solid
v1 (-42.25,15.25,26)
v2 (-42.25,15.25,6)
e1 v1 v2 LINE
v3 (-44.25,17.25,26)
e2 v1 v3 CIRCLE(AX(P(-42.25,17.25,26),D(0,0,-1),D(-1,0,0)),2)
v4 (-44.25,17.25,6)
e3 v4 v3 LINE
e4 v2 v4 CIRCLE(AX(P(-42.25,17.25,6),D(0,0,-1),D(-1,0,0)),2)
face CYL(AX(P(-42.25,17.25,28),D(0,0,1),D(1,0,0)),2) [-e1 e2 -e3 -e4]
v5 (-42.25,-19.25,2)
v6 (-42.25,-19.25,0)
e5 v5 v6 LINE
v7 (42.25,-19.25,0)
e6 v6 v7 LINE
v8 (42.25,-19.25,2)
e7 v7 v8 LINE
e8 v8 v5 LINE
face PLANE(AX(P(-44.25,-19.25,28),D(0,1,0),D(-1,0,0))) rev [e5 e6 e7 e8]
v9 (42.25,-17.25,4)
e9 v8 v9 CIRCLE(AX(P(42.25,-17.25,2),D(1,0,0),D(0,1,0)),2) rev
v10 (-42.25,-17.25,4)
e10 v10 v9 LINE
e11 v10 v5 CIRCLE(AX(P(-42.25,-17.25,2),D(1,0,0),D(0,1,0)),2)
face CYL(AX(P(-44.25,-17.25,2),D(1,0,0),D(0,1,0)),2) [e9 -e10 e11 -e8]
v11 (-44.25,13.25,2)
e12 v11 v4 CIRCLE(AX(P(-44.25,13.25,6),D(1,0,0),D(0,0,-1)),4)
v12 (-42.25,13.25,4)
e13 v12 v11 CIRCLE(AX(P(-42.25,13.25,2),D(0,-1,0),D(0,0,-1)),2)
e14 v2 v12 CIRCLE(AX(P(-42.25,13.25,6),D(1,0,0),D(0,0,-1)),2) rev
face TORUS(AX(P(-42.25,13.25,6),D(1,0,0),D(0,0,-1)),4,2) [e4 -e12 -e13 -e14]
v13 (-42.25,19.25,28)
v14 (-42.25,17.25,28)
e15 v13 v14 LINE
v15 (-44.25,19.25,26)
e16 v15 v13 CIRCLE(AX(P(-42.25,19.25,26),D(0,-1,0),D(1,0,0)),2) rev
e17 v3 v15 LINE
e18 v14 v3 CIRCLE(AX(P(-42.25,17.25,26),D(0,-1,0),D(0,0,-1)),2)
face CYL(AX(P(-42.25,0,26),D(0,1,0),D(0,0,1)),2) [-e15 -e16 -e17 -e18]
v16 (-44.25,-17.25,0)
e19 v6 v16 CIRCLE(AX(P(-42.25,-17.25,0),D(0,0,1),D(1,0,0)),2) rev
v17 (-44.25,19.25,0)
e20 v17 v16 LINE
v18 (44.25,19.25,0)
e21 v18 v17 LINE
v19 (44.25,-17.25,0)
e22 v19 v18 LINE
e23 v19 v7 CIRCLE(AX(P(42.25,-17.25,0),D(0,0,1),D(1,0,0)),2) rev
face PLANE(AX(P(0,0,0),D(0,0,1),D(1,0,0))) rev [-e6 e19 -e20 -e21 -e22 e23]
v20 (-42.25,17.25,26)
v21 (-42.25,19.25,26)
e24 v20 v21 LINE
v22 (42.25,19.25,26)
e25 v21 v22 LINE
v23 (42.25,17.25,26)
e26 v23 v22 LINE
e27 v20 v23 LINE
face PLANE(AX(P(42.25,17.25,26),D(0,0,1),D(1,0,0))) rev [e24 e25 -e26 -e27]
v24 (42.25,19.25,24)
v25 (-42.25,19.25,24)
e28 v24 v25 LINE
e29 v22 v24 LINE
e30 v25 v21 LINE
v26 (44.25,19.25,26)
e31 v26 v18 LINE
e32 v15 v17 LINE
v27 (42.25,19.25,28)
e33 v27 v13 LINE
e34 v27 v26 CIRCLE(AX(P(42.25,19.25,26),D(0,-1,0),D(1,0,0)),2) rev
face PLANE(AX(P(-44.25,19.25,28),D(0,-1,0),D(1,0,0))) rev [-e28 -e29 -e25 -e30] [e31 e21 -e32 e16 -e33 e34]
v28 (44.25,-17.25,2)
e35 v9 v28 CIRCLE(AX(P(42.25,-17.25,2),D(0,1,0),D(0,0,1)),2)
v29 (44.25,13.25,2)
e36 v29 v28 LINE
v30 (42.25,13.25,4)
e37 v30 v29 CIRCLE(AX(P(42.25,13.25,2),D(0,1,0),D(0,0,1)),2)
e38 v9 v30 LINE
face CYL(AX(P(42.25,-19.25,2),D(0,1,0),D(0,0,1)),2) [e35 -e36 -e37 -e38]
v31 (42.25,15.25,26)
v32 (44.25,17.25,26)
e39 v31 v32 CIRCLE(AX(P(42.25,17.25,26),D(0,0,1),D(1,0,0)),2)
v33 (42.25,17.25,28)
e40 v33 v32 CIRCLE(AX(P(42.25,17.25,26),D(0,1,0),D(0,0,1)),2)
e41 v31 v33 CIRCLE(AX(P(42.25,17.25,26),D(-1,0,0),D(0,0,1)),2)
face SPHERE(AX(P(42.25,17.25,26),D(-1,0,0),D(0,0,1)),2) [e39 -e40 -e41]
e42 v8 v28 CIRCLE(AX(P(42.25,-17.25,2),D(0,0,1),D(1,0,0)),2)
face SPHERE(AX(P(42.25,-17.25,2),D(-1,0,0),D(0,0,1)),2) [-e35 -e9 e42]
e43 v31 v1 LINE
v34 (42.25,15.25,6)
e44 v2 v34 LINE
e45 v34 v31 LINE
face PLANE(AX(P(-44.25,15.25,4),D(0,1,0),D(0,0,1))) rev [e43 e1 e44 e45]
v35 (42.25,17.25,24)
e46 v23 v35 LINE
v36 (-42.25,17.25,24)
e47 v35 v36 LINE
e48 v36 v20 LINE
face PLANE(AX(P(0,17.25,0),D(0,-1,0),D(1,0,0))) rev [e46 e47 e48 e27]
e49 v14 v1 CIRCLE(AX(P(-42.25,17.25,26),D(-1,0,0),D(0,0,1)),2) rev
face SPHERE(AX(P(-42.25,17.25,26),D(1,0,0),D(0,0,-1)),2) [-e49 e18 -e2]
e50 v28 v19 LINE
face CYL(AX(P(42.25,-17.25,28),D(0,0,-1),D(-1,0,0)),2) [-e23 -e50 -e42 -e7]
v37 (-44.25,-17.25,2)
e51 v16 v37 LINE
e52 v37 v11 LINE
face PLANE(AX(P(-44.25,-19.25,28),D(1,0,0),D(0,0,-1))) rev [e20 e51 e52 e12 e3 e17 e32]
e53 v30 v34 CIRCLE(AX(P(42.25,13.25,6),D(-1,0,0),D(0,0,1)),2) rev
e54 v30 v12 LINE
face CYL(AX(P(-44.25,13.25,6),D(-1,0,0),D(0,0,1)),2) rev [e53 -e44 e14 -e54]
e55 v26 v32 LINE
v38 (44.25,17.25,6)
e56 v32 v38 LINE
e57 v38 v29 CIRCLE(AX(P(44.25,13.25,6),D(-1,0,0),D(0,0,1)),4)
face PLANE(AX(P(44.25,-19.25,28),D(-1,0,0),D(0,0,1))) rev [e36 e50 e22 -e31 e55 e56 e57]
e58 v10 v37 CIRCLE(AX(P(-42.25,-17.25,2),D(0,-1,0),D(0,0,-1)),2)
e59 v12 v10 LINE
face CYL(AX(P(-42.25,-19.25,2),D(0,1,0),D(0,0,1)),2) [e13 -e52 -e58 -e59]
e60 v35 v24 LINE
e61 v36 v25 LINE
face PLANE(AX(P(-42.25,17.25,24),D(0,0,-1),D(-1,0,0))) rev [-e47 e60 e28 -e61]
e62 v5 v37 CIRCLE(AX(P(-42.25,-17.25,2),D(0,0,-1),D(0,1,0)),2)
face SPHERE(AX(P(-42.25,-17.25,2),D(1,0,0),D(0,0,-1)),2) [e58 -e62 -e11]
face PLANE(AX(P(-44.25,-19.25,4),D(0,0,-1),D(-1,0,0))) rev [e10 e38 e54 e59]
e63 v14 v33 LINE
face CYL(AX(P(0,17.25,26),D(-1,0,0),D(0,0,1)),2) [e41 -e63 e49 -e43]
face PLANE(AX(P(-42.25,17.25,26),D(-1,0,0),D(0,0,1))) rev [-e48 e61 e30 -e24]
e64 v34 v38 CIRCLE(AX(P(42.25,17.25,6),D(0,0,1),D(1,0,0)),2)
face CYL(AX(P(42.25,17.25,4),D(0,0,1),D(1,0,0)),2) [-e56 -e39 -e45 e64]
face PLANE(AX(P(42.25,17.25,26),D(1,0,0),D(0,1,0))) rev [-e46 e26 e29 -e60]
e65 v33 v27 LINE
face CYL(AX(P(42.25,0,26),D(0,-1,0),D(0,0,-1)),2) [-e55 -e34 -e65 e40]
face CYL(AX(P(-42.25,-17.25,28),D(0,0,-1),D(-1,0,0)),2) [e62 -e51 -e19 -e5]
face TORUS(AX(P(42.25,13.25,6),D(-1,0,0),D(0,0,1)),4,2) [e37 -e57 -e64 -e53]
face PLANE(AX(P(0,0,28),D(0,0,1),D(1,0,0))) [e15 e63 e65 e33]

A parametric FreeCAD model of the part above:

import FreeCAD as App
import Part
import Sketcher

V = App.Vector


def edges_at(feature, points):
    """Names of the edges that pass closest to the given points."""
    edges = feature.Shape.Edges
    near = lambda p: min(range(len(edges)), key=lambda i: edges[i].distToShape(Part.Vertex(*p))[0])
    return sorted({f"Edge{near(p) + 1}" for p in points})

doc = App.newDocument("Part")
params = doc.addObject("Spreadsheet::Sheet", "Params")
for row, (alias, value) in enumerate([
    ("sketch1_width", "88.5 mm"),
    ("sketch1_height", "38.5 mm"),
    ("pad1_length", "28 mm"),
    ("sketch2_height", "24 mm"),
    ("sketch2_width", "34.5 mm"),
    ("pocket1_length", "88.5 mm"),
    ("fillet_radius", "2 mm"),
    ("fillet2_radius", "2 mm"),
    ("fillet3_radius", "2 mm"),
    ("fillet4_radius", "2 mm"),
    ("fillet5_radius", "2 mm"),
    ("sketch3_height", "2 mm"),
    ("sketch3_width", "84.5 mm"),
    ("pocket2_length", "2 mm"),
], start=1):
    params.set(f"A{row}", alias)
    params.set(f"B{row}", "=" + value)
    params.setAlias(f"B{row}", alias)

body = doc.addObject("PartDesign::Body", "Body")

# Sketch on XY plane
sketch1 = body.newObject("Sketcher::SketchObject", "Sketch")
sketch1.AttachmentSupport = (doc.getObject("XY_Plane"), [""])
sketch1.MapMode = "FlatFace"
sketch1.addGeometry([
    Part.LineSegment(V(-44, -19, 0), V(44, -19, 0)),
    Part.LineSegment(V(44, -19, 0), V(44, 19, 0)),
    Part.LineSegment(V(44, 19, 0), V(-44, 19, 0)),
    Part.LineSegment(V(-44, 19, 0), V(-44, -19, 0)),
], False)
sketch1.addConstraint([
    Sketcher.Constraint("Coincident", 0, 2, 1, 1),
    Sketcher.Constraint("Coincident", 1, 2, 2, 1),
    Sketcher.Constraint("Coincident", 2, 2, 3, 1),
    Sketcher.Constraint("Coincident", 3, 2, 0, 1),
    Sketcher.Constraint("Horizontal", 0),
    Sketcher.Constraint("Vertical", 1),
    Sketcher.Constraint("Horizontal", 2),
    Sketcher.Constraint("Vertical", 3),
    Sketcher.Constraint("Symmetric", 0, 2, 2, 2, -1, 1),
    Sketcher.Constraint("DistanceX", 0, 1, 0, 2, 88.5),
    Sketcher.Constraint("DistanceY", 1, 1, 1, 2, 38.5),
])
sketch1.setExpression("Constraints[9]", "Params.sketch1_width")
sketch1.setExpression("Constraints[10]", "Params.sketch1_height")
pad1 = body.newObject("PartDesign::Pad", "Pad")
pad1.Profile = sketch1
pad1.setExpression("Length", "Params.pad1_length")

# Sketch on YZ plane
sketch2 = body.newObject("Sketcher::SketchObject", "Sketch001")
sketch2.AttachmentSupport = (doc.getObject("YZ_Plane"), [""])
sketch2.MapMode = "FlatFace"
sketch2.AttachmentOffset = App.Placement(V(0, 0, 44.25), App.Rotation())
sketch2.addGeometry([
    Part.LineSegment(V(-19, 28, 0), V(-19, 4, 0)),
    Part.LineSegment(V(-19, 4, 0), V(15, 4, 0)),
    Part.LineSegment(V(15, 4, 0), V(15, 28, 0)),
    Part.LineSegment(V(15, 28, 0), V(-19, 28, 0)),
], False)
sketch2.addConstraint([
    Sketcher.Constraint("Coincident", 0, 2, 1, 1),
    Sketcher.Constraint("Coincident", 1, 2, 2, 1),
    Sketcher.Constraint("Coincident", 2, 2, 3, 1),
    Sketcher.Constraint("Coincident", 3, 2, 0, 1),
    Sketcher.Constraint("Vertical", 0),
    Sketcher.Constraint("Horizontal", 1),
    Sketcher.Constraint("Vertical", 2),
    Sketcher.Constraint("Horizontal", 3),
    Sketcher.Constraint("DistanceY", 0, 2, 0, 1, 24.0),
    Sketcher.Constraint("DistanceX", 1, 1, 1, 2, 34.5),
    Sketcher.Constraint("DistanceY", -1, 1, 0, 2, 4.0),
    Sketcher.Constraint("DistanceX", 0, 2, -1, 1, 19.25),
])
sketch2.setExpression("Constraints[8]", "Params.sketch2_height")
sketch2.setExpression("Constraints[9]", "Params.sketch2_width")
pocket1 = body.newObject("PartDesign::Pocket", "Pocket")
pocket1.Profile = sketch2
pocket1.setExpression("Length", "Params.pocket1_length")
doc.recompute()

fillet = body.newObject("PartDesign::Fillet", "Fillet")
fillet.Base = (pocket1, edges_at(pocket1, [(0, 15.25, 4)]))
fillet.setExpression("Radius", "Params.fillet_radius")
doc.recompute()

fillet2 = body.newObject("PartDesign::Fillet", "Fillet001")
fillet2.Base = (fillet, edges_at(fillet, [(0, 15.25, 28)]))
fillet2.setExpression("Radius", "Params.fillet2_radius")
doc.recompute()

fillet3 = body.newObject("PartDesign::Fillet", "Fillet002")
fillet3.Base = (fillet2, edges_at(fillet2, [(0, -19.25, 4)]))
fillet3.setExpression("Radius", "Params.fillet3_radius")
doc.recompute()

fillet4 = body.newObject("PartDesign::Fillet", "Fillet003")
fillet4.Base = (fillet3, edges_at(fillet3, [
    (44.25, 15.25, 16),
    (44.25, 14.664, 4.586),
    (44.25, 18.25, 28),
    (44.25, 15.836, 27.414),
    (44.25, -2, 4),
    (44.25, -19.25, 1),
    (44.25, -18.664, 3.414),
]))
fillet4.setExpression("Radius", "Params.fillet4_radius")
doc.recompute()

fillet5 = body.newObject("PartDesign::Fillet", "Fillet004")
fillet5.Base = (fillet4, edges_at(fillet4, [
    (-44.25, 15.25, 16),
    (-44.25, 14.664, 4.586),
    (-44.25, 15.836, 27.414),
    (-44.25, -2, 4),
    (-44.25, -19.25, 1),
    (-44.25, -18.664, 3.414),
    (-44.25, 18.25, 28),
]))
fillet5.setExpression("Radius", "Params.fillet5_radius")

# Sketch on XZ plane
sketch3 = body.newObject("Sketcher::SketchObject", "Sketch002")
sketch3.AttachmentSupport = (doc.getObject("XZ_Plane"), [""])
sketch3.MapMode = "FlatFace"
sketch3.AttachmentOffset = App.Placement(V(0, 0, -19.25), App.Rotation())
sketch3.addGeometry([
    Part.LineSegment(V(42.2, 26, 0), V(42.2, 24, 0)),
    Part.LineSegment(V(42.2, 24, 0), V(-42.2, 24, 0)),
    Part.LineSegment(V(-42.2, 24, 0), V(-42.2, 26, 0)),
    Part.LineSegment(V(-42.2, 26, 0), V(42.2, 26, 0)),
], False)
sketch3.addConstraint([
    Sketcher.Constraint("Coincident", 0, 2, 1, 1),
    Sketcher.Constraint("Coincident", 1, 2, 2, 1),
    Sketcher.Constraint("Coincident", 2, 2, 3, 1),
    Sketcher.Constraint("Coincident", 3, 2, 0, 1),
    Sketcher.Constraint("Vertical", 0),
    Sketcher.Constraint("Horizontal", 1),
    Sketcher.Constraint("Vertical", 2),
    Sketcher.Constraint("Horizontal", 3),
    Sketcher.Constraint("DistanceY", 0, 2, 0, 1, 2.0),
    Sketcher.Constraint("DistanceX", 1, 2, 1, 1, 84.5),
    Sketcher.Constraint("DistanceY", -1, 1, 0, 2, 24.0),
    Sketcher.Constraint("DistanceX", -1, 1, 0, 2, 42.25),
])
sketch3.setExpression("Constraints[8]", "Params.sketch3_height")
sketch3.setExpression("Constraints[9]", "Params.sketch3_width")
pocket2 = body.newObject("PartDesign::Pocket", "Pocket001")
pocket2.Profile = sketch3
pocket2.setExpression("Length", "Params.pocket2_length")
pocket2.Reversed = True

doc.recompute()
